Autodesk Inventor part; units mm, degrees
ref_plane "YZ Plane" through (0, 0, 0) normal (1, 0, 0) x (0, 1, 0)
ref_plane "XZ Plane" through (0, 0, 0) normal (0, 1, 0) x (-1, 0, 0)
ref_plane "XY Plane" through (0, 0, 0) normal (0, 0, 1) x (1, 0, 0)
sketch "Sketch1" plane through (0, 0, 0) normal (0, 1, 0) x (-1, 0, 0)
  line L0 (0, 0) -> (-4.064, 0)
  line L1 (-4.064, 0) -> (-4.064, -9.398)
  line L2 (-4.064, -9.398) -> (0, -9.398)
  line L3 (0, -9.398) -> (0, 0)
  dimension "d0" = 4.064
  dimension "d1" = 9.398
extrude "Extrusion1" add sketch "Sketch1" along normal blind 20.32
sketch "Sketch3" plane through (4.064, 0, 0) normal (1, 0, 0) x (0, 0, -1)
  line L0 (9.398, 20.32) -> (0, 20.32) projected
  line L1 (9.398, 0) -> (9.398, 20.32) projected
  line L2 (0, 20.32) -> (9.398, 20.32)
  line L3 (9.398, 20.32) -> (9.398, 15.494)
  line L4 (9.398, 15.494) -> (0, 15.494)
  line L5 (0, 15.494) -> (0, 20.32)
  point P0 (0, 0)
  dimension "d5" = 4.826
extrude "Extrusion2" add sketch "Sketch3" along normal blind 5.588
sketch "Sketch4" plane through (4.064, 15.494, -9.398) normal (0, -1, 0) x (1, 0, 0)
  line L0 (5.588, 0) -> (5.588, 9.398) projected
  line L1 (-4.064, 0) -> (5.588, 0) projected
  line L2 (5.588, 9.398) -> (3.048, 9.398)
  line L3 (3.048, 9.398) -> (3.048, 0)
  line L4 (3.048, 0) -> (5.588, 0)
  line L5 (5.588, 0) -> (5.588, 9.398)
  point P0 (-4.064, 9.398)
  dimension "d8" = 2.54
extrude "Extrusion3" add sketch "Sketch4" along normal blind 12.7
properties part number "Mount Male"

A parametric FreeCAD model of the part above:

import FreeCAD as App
import Part
import Sketcher

V = App.Vector
Q = App.Units.Quantity

doc = App.newDocument("Part")
body = doc.addObject("PartDesign::Body", "Body")

sketch1 = body.newObject("Sketcher::SketchObject", "Sketch")
sketch1.AttachmentSupport = (doc.getObject("XZ_Plane"), [""])
sketch1.MapMode = "FlatFace"
sketch1.addGeometry([
    Part.LineSegment(V(0, -9.4, 0), V(0, 0, 0)),
    Part.LineSegment(V(0, 0, 0), V(4.1, 0, 0)),
    Part.LineSegment(V(4.1, 0, 0), V(4.1, -9.4, 0)),
    Part.LineSegment(V(4.1, -9.4, 0), V(0, -9.4, 0)),
], False)
sketch1.addConstraint([
    Sketcher.Constraint("Coincident", 0, 2, 1, 1),
    Sketcher.Constraint("Coincident", 1, 2, 2, 1),
    Sketcher.Constraint("Coincident", 2, 2, 3, 1),
    Sketcher.Constraint("Coincident", 3, 2, 0, 1),
    Sketcher.Constraint("Vertical", 0),
    Sketcher.Constraint("Horizontal", 1),
    Sketcher.Constraint("Vertical", 2),
    Sketcher.Constraint("Horizontal", 3),
    Sketcher.Constraint("Coincident", 0, 2, -1, 1),
    Sketcher.Constraint("DistanceX", 1, 1, 1, 2, Q("0.16 in")),
    Sketcher.Constraint("DistanceY", 0, 1, 0, 2, Q("0.37 in")),
])
pad1 = body.newObject("PartDesign::Pad", "Pad")
pad1.Profile = sketch1
pad1.Length = Q("0.8 in")
pad1.Reversed = True

sketch2 = body.newObject("Sketcher::SketchObject", "Sketch001")
sketch2.AttachmentSupport = (doc.getObject("YZ_Plane"), [""])
sketch2.MapMode = "FlatFace"
sketch2.AttachmentOffset = App.Placement(V(0, 0, 0.16 * 25.4), App.Rotation())
sketch2.addGeometry([
    Part.LineSegment(V(15.5, -9.4, 0), V(20.3, -9.4, 0)),
    Part.LineSegment(V(20.3, -9.4, 0), V(20.3, 0, 0)),
    Part.LineSegment(V(20.3, 0, 0), V(15.5, 0, 0)),
    Part.LineSegment(V(15.5, 0, 0), V(15.5, -9.4, 0)),
], False)
sketch2.addConstraint([
    Sketcher.Constraint("Coincident", 0, 2, 1, 1),
    Sketcher.Constraint("Coincident", 1, 2, 2, 1),
    Sketcher.Constraint("Coincident", 2, 2, 3, 1),
    Sketcher.Constraint("Coincident", 3, 2, 0, 1),
    Sketcher.Constraint("Horizontal", 0),
    Sketcher.Constraint("Vertical", 1),
    Sketcher.Constraint("Horizontal", 2),
    Sketcher.Constraint("Vertical", 3),
    Sketcher.Constraint("PointOnObject", 1, 2, -1),
    Sketcher.Constraint("DistanceX", 0, 1, 0, 2, Q("0.19 in")),
    Sketcher.Constraint("DistanceY", 1, 1, 1, 2, Q("0.37 in")),
    Sketcher.Constraint("DistanceX", -1, 1, 0, 2, Q("0.8 in")),
])
pad2 = body.newObject("PartDesign::Pad", "Pad001")
pad2.Profile = sketch2
pad2.Length = Q("0.22 in")

sketch3 = body.newObject("Sketcher::SketchObject", "Sketch002")
sketch3.AttachmentSupport = (doc.getObject("XZ_Plane"), [""])
sketch3.MapMode = "FlatFace"
sketch3.AttachmentOffset = App.Placement(V(0, 0, -0.61 * 25.4), App.Rotation())
sketch3.addGeometry([
    Part.LineSegment(V(7.1, -9.4, 0), V(9.7, -9.4, 0)),
    Part.LineSegment(V(9.7, -9.4, 0), V(9.7, 0, 0)),
    Part.LineSegment(V(9.7, 0, 0), V(7.1, 0, 0)),
    Part.LineSegment(V(7.1, 0, 0), V(7.1, -9.4, 0)),
], False)
sketch3.addConstraint([
    Sketcher.Constraint("Coincident", 0, 2, 1, 1),
    Sketcher.Constraint("Coincident", 1, 2, 2, 1),
    Sketcher.Constraint("Coincident", 2, 2, 3, 1),
    Sketcher.Constraint("Coincident", 3, 2, 0, 1),
    Sketcher.Constraint("Horizontal", 0),
    Sketcher.Constraint("Vertical", 1),
    Sketcher.Constraint("Horizontal", 2),
    Sketcher.Constraint("Vertical", 3),
    Sketcher.Constraint("PointOnObject", 1, 2, -1),
    Sketcher.Constraint("DistanceX", 0, 1, 0, 2, Q("0.1 in")),
    Sketcher.Constraint("DistanceY", 1, 1, 1, 2, Q("0.37 in")),
    Sketcher.Constraint("DistanceX", -1, 1, 0, 2, Q("0.38 in")),
])
pad3 = body.newObject("PartDesign::Pad", "Pad002")
pad3.Profile = sketch3
pad3.Length = Q("0.5 in")

doc.recompute()
